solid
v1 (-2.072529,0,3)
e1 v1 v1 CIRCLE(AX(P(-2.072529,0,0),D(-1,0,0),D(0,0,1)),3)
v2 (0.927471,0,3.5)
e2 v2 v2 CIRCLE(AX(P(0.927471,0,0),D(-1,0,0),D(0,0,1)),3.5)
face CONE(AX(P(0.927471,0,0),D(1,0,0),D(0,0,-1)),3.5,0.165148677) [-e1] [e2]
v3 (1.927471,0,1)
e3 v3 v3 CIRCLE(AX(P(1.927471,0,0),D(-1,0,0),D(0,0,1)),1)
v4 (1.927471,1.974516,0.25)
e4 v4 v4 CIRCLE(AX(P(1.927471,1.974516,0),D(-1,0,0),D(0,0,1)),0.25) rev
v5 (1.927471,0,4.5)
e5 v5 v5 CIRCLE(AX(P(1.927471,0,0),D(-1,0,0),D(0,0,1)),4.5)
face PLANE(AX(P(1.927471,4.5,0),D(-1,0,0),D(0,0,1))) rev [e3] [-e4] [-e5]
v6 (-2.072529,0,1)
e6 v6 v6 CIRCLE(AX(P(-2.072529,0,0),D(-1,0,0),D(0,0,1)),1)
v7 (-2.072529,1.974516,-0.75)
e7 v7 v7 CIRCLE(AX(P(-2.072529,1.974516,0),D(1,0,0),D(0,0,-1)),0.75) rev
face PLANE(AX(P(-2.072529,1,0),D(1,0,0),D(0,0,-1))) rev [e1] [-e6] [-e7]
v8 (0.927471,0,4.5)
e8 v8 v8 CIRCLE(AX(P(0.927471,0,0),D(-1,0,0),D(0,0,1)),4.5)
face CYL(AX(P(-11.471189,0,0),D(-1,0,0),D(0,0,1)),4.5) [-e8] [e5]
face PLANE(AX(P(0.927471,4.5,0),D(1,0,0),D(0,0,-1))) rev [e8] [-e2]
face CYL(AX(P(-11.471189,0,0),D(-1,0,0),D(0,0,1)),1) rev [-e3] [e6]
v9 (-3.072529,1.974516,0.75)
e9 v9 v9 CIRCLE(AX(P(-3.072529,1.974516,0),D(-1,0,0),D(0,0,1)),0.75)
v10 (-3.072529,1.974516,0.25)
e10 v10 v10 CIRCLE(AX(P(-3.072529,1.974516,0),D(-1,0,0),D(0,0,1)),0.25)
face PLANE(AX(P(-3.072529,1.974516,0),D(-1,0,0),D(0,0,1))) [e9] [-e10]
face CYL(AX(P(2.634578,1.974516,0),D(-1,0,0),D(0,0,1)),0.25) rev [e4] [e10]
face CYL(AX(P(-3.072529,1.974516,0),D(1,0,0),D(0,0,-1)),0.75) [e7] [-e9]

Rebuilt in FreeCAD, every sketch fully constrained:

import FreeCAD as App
import Part
import Sketcher

V = App.Vector
Q = App.Units.Quantity

doc = App.newDocument("Part")
params = doc.addObject("Spreadsheet::Sheet", "Params")
for row, (alias, value) in enumerate([
    ("sketch1_width", "1 mm"),
    ("sketch1_width2", "4 mm"),
    ("sketch1_height", "2 mm"),
    ("sketch1_height2", "3.5 mm"),
    ("revolution_angle", "360 deg"),
    ("sketch2_diameter", "0.5 mm"),
    ("pocket1_length", "4 mm"),
    ("sketch3_diameter", "1.5 mm"),
    ("sketch3_diameter2", "0.5 mm"),
    ("pad1_length", "1 mm"),
], start=1):
    params.set(f"A{row}", alias)
    params.set(f"B{row}", "=" + value)
    params.setAlias(f"B{row}", alias)

body = doc.addObject("PartDesign::Body", "Body")

# Sketch on XY plane
sketch1 = body.newObject("Sketcher::SketchObject", "Sketch")
sketch1.AttachmentSupport = (doc.getObject("XY_Plane"), [""])
sketch1.MapMode = "FlatFace"
sketch1.addGeometry([
    Part.LineSegment(V(1.9, 4.5, 0), V(0.9, 4.5, 0)),  # 0
    Part.LineSegment(V(0.9, 4.5, 0), V(0.9, 3.5, 0)),  # 1
    Part.LineSegment(V(0.9, 3.5, 0), V(-2.1, 3, 0)),  # 2
    Part.LineSegment(V(-2.1, 3, 0), V(-2.1, 1, 0)),  # 3
    Part.LineSegment(V(-2.1, 1, 0), V(1.9, 1, 0)),  # 4
    Part.LineSegment(V(1.9, 1, 0), V(1.9, 4.5, 0)),  # 5
], False)
sketch1.addConstraint([
    Sketcher.Constraint("Coincident", 0, 2, 1, 1),
    Sketcher.Constraint("Coincident", 1, 2, 2, 1),
    Sketcher.Constraint("Coincident", 2, 2, 3, 1),
    Sketcher.Constraint("Coincident", 3, 2, 4, 1),
    Sketcher.Constraint("Coincident", 4, 2, 5, 1),
    Sketcher.Constraint("Coincident", 5, 2, 0, 1),
    Sketcher.Constraint("Horizontal", 0),
    Sketcher.Constraint("Vertical", 1),
    Sketcher.Constraint("Vertical", 3),
    Sketcher.Constraint("Horizontal", 4),
    Sketcher.Constraint("Vertical", 5),
    Sketcher.Constraint("Equal", 0, 1),
    Sketcher.Constraint("DistanceX", 0, 2, 0, 1, Q("1 mm")),
    Sketcher.Constraint("DistanceX", 4, 1, 4, 2, Q("4 mm")),
    Sketcher.Constraint("DistanceY", 3, 2, 3, 1, Q("2 mm")),
    Sketcher.Constraint("DistanceY", 5, 1, 5, 2, Q("3.5 mm")),
    Sketcher.Constraint("DistanceY", -1, 1, 2, 2, Q("3 mm")),
    Sketcher.Constraint("DistanceX", -1, 1, 0, 2, Q("0.927471 mm")),
])
sketch1.setExpression("Constraints[12]", "Params.sketch1_width")
sketch1.setExpression("Constraints[13]", "Params.sketch1_width2")
sketch1.setExpression("Constraints[14]", "Params.sketch1_height")
sketch1.setExpression("Constraints[15]", "Params.sketch1_height2")
revolution = body.newObject("PartDesign::Revolution", "Revolution")
revolution.Profile = sketch1
revolution.ReferenceAxis = (sketch1, ["H_Axis"])
revolution.setExpression("Angle", "Params.revolution_angle")

# Sketch on YZ plane
sketch2 = body.newObject("Sketcher::SketchObject", "Sketch001")
sketch2.AttachmentSupport = (doc.getObject("YZ_Plane"), [""])
sketch2.MapMode = "FlatFace"
sketch2.AttachmentOffset = App.Placement(V(0, 0, -2.072529), App.Rotation())
sketch2.addGeometry(Part.Circle(V(1.97, 0, 0), V(0, 0, 1), 0.25), False)
sketch2.addConstraint([
    Sketcher.Constraint("PointOnObject", 0, 3, -1),
    Sketcher.Constraint("Diameter", 0, Q("0.5 mm")),
    Sketcher.Constraint("DistanceX", -1, 1, 0, 3, Q("1.974516 mm")),
])
sketch2.setExpression("Constraints[1]", "Params.sketch2_diameter")
pocket1 = body.newObject("PartDesign::Pocket", "Pocket")
pocket1.Profile = sketch2
pocket1.setExpression("Length", "Params.pocket1_length")
pocket1.Reversed = True

# Sketch on YZ plane
sketch3 = body.newObject("Sketcher::SketchObject", "Sketch002")
sketch3.AttachmentSupport = (doc.getObject("YZ_Plane"), [""])
sketch3.MapMode = "FlatFace"
sketch3.AttachmentOffset = App.Placement(V(0, 0, -2.072529), App.Rotation())
sketch3.addGeometry([
    Part.Circle(V(1.97, 0, 0), V(0, 0, 1), 0.75),
    Part.Circle(V(1.97, 0, 0), V(0, 0, 1), 0.25),
], False)
sketch3.addConstraint([
    Sketcher.Constraint("Coincident", 1, 3, 0, 3),
    Sketcher.Constraint("PointOnObject", 0, 3, -1),
    Sketcher.Constraint("Diameter", 0, Q("1.5 mm")),
    Sketcher.Constraint("Diameter", 1, Q("0.5 mm")),
    Sketcher.Constraint("DistanceX", -1, 1, 0, 3, Q("1.974516 mm")),
])
sketch3.setExpression("Constraints[2]", "Params.sketch3_diameter")
sketch3.setExpression("Constraints[3]", "Params.sketch3_diameter2")
pad1 = body.newObject("PartDesign::Pad", "Pad")
pad1.Profile = sketch3
pad1.setExpression("Length", "Params.pad1_length")
pad1.Reversed = True

doc.recompute()
